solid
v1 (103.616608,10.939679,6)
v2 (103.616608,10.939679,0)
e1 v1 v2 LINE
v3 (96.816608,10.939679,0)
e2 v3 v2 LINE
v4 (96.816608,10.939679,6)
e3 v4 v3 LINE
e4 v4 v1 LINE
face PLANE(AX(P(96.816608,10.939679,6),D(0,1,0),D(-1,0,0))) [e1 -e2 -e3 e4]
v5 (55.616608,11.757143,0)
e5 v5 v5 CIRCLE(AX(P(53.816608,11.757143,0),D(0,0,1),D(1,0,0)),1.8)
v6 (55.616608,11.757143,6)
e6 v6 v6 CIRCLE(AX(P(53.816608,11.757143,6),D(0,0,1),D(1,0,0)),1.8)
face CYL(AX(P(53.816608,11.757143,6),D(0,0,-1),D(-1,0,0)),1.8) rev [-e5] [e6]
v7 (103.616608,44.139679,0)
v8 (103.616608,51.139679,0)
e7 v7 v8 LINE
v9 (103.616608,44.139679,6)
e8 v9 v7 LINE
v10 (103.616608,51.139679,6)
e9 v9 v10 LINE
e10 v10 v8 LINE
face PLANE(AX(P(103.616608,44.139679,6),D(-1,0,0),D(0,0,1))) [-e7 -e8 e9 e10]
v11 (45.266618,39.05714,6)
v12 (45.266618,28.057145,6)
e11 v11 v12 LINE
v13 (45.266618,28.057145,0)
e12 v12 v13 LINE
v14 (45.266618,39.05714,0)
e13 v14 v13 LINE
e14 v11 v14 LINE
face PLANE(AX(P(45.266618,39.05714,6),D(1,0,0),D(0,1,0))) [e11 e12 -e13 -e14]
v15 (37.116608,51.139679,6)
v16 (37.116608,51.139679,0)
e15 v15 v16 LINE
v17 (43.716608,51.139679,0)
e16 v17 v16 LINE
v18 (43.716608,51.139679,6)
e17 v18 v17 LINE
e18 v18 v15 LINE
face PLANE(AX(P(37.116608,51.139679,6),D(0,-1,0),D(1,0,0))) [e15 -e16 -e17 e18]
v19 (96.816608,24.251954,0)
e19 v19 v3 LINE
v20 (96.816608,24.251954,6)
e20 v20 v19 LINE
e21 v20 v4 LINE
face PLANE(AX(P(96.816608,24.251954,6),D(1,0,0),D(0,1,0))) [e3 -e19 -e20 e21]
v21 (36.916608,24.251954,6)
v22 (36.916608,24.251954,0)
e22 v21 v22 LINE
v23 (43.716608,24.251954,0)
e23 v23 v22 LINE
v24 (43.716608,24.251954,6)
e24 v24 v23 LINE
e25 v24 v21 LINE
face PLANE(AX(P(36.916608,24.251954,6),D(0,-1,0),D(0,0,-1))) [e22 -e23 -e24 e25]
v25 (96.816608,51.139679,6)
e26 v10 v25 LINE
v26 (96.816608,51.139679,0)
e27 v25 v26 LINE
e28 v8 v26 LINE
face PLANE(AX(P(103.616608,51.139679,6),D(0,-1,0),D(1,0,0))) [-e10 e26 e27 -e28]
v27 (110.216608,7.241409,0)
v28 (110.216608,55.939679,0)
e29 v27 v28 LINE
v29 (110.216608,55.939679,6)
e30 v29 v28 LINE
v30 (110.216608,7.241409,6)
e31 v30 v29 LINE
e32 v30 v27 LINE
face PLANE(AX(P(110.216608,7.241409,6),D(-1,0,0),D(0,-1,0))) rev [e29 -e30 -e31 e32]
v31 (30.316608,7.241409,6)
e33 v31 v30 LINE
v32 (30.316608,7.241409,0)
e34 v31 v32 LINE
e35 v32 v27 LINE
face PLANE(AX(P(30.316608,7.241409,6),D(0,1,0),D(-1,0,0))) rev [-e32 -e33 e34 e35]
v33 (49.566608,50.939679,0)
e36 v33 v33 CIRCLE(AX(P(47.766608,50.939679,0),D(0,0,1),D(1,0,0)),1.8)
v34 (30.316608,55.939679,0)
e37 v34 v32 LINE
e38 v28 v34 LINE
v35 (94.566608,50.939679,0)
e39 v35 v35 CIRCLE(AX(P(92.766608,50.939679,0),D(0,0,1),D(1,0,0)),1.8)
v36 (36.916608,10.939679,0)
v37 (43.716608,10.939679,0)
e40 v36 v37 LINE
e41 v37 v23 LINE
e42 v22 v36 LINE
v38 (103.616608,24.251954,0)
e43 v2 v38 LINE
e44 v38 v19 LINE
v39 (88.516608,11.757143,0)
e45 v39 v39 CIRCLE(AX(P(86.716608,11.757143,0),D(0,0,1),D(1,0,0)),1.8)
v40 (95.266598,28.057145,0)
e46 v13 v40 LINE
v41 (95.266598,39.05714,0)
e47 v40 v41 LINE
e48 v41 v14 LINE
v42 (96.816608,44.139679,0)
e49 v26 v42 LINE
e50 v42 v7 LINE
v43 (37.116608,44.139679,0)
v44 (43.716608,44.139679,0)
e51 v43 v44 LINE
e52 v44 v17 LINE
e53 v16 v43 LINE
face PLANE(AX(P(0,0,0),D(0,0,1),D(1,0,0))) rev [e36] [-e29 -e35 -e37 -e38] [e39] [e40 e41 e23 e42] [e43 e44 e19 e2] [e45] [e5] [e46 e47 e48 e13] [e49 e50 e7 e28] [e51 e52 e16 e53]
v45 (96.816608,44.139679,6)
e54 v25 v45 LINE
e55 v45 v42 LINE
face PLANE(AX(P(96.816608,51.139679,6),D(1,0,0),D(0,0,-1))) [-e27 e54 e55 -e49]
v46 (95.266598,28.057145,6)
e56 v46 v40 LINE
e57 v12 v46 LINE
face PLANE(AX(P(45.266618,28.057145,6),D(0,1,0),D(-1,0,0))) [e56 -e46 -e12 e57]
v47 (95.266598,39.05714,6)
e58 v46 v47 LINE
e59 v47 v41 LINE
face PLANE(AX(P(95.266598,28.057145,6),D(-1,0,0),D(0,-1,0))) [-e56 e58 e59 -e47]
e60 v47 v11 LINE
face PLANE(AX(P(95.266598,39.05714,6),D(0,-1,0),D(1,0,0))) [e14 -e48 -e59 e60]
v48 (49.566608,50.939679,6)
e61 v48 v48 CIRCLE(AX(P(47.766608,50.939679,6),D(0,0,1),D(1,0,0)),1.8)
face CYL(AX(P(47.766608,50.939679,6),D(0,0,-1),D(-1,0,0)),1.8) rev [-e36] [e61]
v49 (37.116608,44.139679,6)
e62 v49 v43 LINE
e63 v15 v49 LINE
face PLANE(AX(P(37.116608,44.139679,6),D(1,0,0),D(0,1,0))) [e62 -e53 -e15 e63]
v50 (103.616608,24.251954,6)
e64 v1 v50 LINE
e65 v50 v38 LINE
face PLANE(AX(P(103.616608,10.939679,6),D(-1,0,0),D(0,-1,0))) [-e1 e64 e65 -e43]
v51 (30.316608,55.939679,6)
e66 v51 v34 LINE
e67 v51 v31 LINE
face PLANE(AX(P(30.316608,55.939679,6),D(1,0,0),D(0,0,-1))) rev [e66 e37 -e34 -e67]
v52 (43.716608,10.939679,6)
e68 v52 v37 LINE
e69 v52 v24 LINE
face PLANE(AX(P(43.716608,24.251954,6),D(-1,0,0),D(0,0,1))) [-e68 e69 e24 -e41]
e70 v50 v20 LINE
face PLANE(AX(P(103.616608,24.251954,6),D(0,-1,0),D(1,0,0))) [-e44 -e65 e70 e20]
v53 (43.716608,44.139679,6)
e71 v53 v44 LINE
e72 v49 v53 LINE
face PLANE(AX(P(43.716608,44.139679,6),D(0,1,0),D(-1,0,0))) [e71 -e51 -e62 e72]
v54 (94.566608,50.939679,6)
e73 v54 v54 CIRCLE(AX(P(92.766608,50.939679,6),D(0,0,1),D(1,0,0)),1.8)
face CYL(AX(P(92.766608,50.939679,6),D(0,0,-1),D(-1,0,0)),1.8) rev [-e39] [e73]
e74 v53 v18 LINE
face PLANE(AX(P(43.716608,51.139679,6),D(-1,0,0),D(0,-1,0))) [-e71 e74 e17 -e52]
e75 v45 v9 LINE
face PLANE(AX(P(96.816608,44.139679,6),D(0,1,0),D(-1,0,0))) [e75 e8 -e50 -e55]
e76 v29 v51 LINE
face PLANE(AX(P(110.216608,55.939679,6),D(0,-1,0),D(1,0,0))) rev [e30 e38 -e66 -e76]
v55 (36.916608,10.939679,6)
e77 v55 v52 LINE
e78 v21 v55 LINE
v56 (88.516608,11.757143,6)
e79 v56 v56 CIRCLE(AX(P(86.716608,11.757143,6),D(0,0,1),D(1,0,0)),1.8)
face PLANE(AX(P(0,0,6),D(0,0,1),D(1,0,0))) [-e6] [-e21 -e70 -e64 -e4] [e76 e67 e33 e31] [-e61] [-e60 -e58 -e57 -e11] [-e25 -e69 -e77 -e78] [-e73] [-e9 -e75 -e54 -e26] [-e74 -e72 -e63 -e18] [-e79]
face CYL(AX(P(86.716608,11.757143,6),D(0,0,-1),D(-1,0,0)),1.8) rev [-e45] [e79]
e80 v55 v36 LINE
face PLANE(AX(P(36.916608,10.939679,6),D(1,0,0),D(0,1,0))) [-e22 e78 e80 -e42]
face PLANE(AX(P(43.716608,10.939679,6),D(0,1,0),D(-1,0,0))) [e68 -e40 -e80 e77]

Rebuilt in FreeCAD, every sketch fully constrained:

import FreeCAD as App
import Part
import Sketcher

V = App.Vector
Q = App.Units.Quantity

doc = App.newDocument("Part")
body = doc.addObject("PartDesign::Body", "Body")

sketch1 = doc.addObject("Sketcher::SketchObject", "Sketch")
body.addObject(sketch1)
sketch1.AttachmentSupport = (doc.XY_Plane, [""])
sketch1.MapMode = "FlatFace"
sketch1.addGeometry([
    Part.LineSegment(V(30.3, 55.9, 0), V(30.3, 7.2, 0)),
    Part.LineSegment(V(30.3, 7.2, 0), V(110.2, 7.2, 0)),
    Part.LineSegment(V(110.2, 7.2, 0), V(110.2, 55.9, 0)),
    Part.LineSegment(V(110.2, 55.9, 0), V(30.3, 55.9, 0)),
    Part.LineSegment(V(43.7, 10.9, 0), V(36.9, 10.9, 0)),
    Part.LineSegment(V(36.9, 10.9, 0), V(36.9, 24.3, 0)),
    Part.LineSegment(V(36.9, 24.3, 0), V(43.7, 24.3, 0)),
    Part.LineSegment(V(43.7, 24.3, 0), V(43.7, 10.9, 0)),
    Part.Circle(V(53.8, 11.8, 0), V(0, 0, 1), 1.8),
    Part.Circle(V(86.7, 11.8, 0), V(0, 0, 1), 1.8),
    Part.LineSegment(V(103.6, 10.9, 0), V(96.8, 10.9, 0)),
    Part.LineSegment(V(96.8, 10.9, 0), V(96.8, 24.3, 0)),
    Part.LineSegment(V(96.8, 24.3, 0), V(103.6, 24.3, 0)),
    Part.LineSegment(V(103.6, 24.3, 0), V(103.6, 10.9, 0)),
    Part.LineSegment(V(43.7, 44.1, 0), V(37.1, 44.1, 0)),
    Part.LineSegment(V(37.1, 44.1, 0), V(37.1, 51.1, 0)),
    Part.LineSegment(V(37.1, 51.1, 0), V(43.7, 51.1, 0)),
    Part.LineSegment(V(43.7, 51.1, 0), V(43.7, 44.1, 0)),
    Part.Circle(V(47.8, 50.9, 0), V(0, 0, 1), 1.8),
    Part.LineSegment(V(95.3, 28.1, 0), V(45.3, 28.1, 0)),
    Part.LineSegment(V(45.3, 28.1, 0), V(45.3, 39.1, 0)),
    Part.LineSegment(V(45.3, 39.1, 0), V(95.3, 39.1, 0)),
    Part.LineSegment(V(95.3, 39.1, 0), V(95.3, 28.1, 0)),
    Part.Circle(V(92.8, 50.9, 0), V(0, 0, 1), 1.8),
    Part.LineSegment(V(103.6, 44.1, 0), V(96.8, 44.1, 0)),
    Part.LineSegment(V(96.8, 44.1, 0), V(96.8, 51.1, 0)),
    Part.LineSegment(V(96.8, 51.1, 0), V(103.6, 51.1, 0)),
    Part.LineSegment(V(103.6, 51.1, 0), V(103.6, 44.1, 0)),
], False)
sketch1.addConstraint([
    Sketcher.Constraint("Coincident", 0, 2, 1, 1),
    Sketcher.Constraint("Coincident", 1, 2, 2, 1),
    Sketcher.Constraint("Coincident", 2, 2, 3, 1),
    Sketcher.Constraint("Coincident", 3, 2, 0, 1),
    Sketcher.Constraint("Coincident", 4, 2, 5, 1),
    Sketcher.Constraint("Coincident", 5, 2, 6, 1),
    Sketcher.Constraint("Coincident", 6, 2, 7, 1),
    Sketcher.Constraint("Coincident", 7, 2, 4, 1),
    Sketcher.Constraint("Coincident", 10, 2, 11, 1),
    Sketcher.Constraint("Coincident", 11, 2, 12, 1),
    Sketcher.Constraint("Coincident", 12, 2, 13, 1),
    Sketcher.Constraint("Coincident", 13, 2, 10, 1),
    Sketcher.Constraint("Coincident", 14, 2, 15, 1),
    Sketcher.Constraint("Coincident", 15, 2, 16, 1),
    Sketcher.Constraint("Coincident", 16, 2, 17, 1),
    Sketcher.Constraint("Coincident", 17, 2, 14, 1),
    Sketcher.Constraint("Coincident", 19, 2, 20, 1),
    Sketcher.Constraint("Coincident", 20, 2, 21, 1),
    Sketcher.Constraint("Coincident", 21, 2, 22, 1),
    Sketcher.Constraint("Coincident", 22, 2, 19, 1),
    Sketcher.Constraint("Coincident", 24, 2, 25, 1),
    Sketcher.Constraint("Coincident", 25, 2, 26, 1),
    Sketcher.Constraint("Coincident", 26, 2, 27, 1),
    Sketcher.Constraint("Coincident", 27, 2, 24, 1),
    Sketcher.Constraint("Vertical", 0),
    Sketcher.Constraint("Horizontal", 1),
    Sketcher.Constraint("Vertical", 2),
    Sketcher.Constraint("Horizontal", 3),
    Sketcher.Constraint("Horizontal", 4),
    Sketcher.Constraint("Vertical", 5),
    Sketcher.Constraint("Horizontal", 6),
    Sketcher.Constraint("Vertical", 7),
    Sketcher.Constraint("Horizontal", 10),
    Sketcher.Constraint("Vertical", 11),
    Sketcher.Constraint("Horizontal", 12),
    Sketcher.Constraint("Vertical", 13),
    Sketcher.Constraint("Horizontal", 14),
    Sketcher.Constraint("Vertical", 15),
    Sketcher.Constraint("Horizontal", 16),
    Sketcher.Constraint("Vertical", 17),
    Sketcher.Constraint("Horizontal", 19),
    Sketcher.Constraint("Vertical", 20),
    Sketcher.Constraint("Horizontal", 21),
    Sketcher.Constraint("Vertical", 22),
    Sketcher.Constraint("Horizontal", 24),
    Sketcher.Constraint("Vertical", 25),
    Sketcher.Constraint("Horizontal", 26),
    Sketcher.Constraint("Vertical", 27),
    Sketcher.Constraint("Equal", 8, 9),
    Sketcher.Constraint("Equal", 9, 18),
    Sketcher.Constraint("Equal", 18, 23),
    Sketcher.Constraint("Horizontal", 8, 3, 9, 3),
    Sketcher.Constraint("Horizontal", 18, 3, 23, 3),
    Sketcher.Constraint("Horizontal", 7, 2, 10, 2),
    Sketcher.Constraint("Horizontal", 6, 2, 11, 2),
    Sketcher.Constraint("Horizontal", 17, 2, 24, 2),
    Sketcher.Constraint("Horizontal", 16, 2, 25, 2),
    Sketcher.Constraint("Vertical", 7, 2, 16, 2),
    Sketcher.Constraint("Vertical", 11, 2, 24, 2),
    Sketcher.Constraint("Vertical", 13, 2, 26, 2),
    Sketcher.Constraint("Equal", 6, 10),
    Sketcher.Constraint("Diameter", 8, Q("3.6 mm")),
    Sketcher.Constraint("DistanceY", 15, 1, 15, 2, Q("7 mm")),
    Sketcher.Constraint("DistanceX", 1, 1, 1, 2, Q("79.9 mm")),
    Sketcher.Constraint("DistanceX", 4, 2, 4, 1, Q("6.8 mm")),
    Sketcher.Constraint("DistanceX", 14, 2, 14, 1, Q("6.6 mm")),
    Sketcher.Constraint("DistanceX", 18, 3, 23, 3, Q("45 mm")),
    Sketcher.Constraint("DistanceY", 23, 3, 2, 2, Q("5 mm")),
    Sketcher.Constraint("DistanceY", 4, 2, 18, 3, Q("40 mm")),
    Sketcher.Constraint("DistanceX", 8, 3, 10, 2, Q("43 mm")),
    Sketcher.Constraint("DistanceX", 8, 3, 9, 3, Q("32.9 mm")),
    Sketcher.Constraint("DistanceX", 0, 2, 8, 3, Q("23.5 mm")),
    Sketcher.Constraint("DistanceX", 0, 2, 4, 2, Q("6.6 mm")),
    Sketcher.Constraint("DistanceY", 14, 2, 18, 3, Q("6.8 mm")),
    Sketcher.Constraint("DistanceX", 18, 3, 8, 3, Q("6.05 mm")),
    Sketcher.Constraint("DistanceX", 19, 2, 19, 1, Q("49.99998 mm")),
    Sketcher.Constraint("DistanceY", 0, 2, 0, 1, Q("48.69827 mm")),
    Sketcher.Constraint("DistanceY", 5, 1, 5, 2, Q("13.312275 mm")),
    Sketcher.Constraint("DistanceY", 20, 1, 20, 2, Q("10.999995 mm")),
    Sketcher.Constraint("DistanceY", -1, 1, 18, 3, Q("50.939679 mm")),
    Sketcher.Constraint("DistanceY", -1, 1, 20, 2, Q("39.05714 mm")),
    Sketcher.Constraint("DistanceY", 8, 3, 5, 2, Q("12.494812 mm")),
    Sketcher.Constraint("DistanceX", 6, 2, 19, 2, Q("1.55001 mm")),
    Sketcher.Constraint("DistanceX", -1, 1, 8, 3, Q("53.816608 mm")),
])
pad1 = doc.addObject("PartDesign::Pad", "Pad")
body.addObject(pad1)
pad1.Profile = sketch1
pad1.Length = 6

doc.recompute()
